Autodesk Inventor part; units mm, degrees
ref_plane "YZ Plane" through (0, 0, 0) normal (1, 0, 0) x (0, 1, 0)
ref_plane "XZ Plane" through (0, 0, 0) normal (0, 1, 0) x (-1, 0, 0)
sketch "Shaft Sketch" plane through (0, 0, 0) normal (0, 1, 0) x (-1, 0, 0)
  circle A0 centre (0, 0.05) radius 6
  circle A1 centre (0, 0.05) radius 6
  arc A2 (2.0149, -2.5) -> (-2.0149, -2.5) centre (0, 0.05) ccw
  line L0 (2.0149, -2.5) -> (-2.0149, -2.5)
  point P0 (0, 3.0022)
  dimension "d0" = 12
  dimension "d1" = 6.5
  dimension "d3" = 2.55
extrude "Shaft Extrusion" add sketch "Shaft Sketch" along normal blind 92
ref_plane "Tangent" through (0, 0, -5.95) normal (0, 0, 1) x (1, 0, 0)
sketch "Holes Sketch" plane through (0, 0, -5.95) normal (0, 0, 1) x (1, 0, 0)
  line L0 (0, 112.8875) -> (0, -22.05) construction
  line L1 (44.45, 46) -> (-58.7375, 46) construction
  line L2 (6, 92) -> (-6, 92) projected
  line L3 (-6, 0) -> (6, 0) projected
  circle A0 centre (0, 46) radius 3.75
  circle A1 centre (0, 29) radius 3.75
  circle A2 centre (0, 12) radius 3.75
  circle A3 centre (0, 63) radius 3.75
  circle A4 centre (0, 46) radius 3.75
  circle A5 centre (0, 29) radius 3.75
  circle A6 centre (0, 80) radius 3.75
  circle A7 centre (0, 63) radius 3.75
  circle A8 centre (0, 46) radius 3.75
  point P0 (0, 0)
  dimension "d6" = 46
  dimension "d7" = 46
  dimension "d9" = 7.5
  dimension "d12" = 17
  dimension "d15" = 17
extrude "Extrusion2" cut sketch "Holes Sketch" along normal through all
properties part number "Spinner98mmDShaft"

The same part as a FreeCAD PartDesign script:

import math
import FreeCAD as App
import Part
import Sketcher
from FreeCAD import Vector
Q = App.Units.Quantity

doc = App.newDocument("Part")
body = doc.addObject("PartDesign::Body", "Body")

sketch1 = doc.addObject("Sketcher::SketchObject", "Sketch")
body.addObject(sketch1)
sketch1.AttachmentSupport = (doc.XZ_Plane, [""])
sketch1.MapMode = "FlatFace"
sketch1.addGeometry(Part.Circle(Vector(0, 0.1, 0), Vector(0, 0, 1), 6), False)
sketch1.addGeometry(Part.ArcOfCircle(Part.Circle(Vector(0, 0.1, 0), Vector(0, 0, 1), 3.2), math.radians(-52), math.radians(232)), False)
sketch1.addGeometry(Part.LineSegment(Vector(-2, -2.5, 0), Vector(2, -2.5, 0)), False)
sketch1.addConstraint(Sketcher.Constraint("Coincident", 1, 1, 2, 2))
sketch1.addConstraint(Sketcher.Constraint("Coincident", 2, 1, 1, 2))
sketch1.addConstraint(Sketcher.Constraint("Horizontal", 2))
sketch1.addConstraint(Sketcher.Constraint("Coincident", 1, 3, 0, 3))
sketch1.addConstraint(Sketcher.Constraint("PointOnObject", 0, 3, -2))
sketch1.addConstraint(Sketcher.Constraint("Diameter", 0, Q("12 mm")))
sketch1.addConstraint(Sketcher.Constraint("Radius", 1, Q("3.25 mm")))
sketch1.addConstraint(Sketcher.Constraint("DistanceY", 1, 1, 0, 3, Q("2.55 mm")))
sketch1.addConstraint(Sketcher.Constraint("DistanceY", 1, 1, -1, 1, Q("2.5 mm")))
pad1 = doc.addObject("PartDesign::Pad", "Pad")
body.addObject(pad1)
pad1.Profile = sketch1
pad1.Length = 92
pad1.Reversed = True

sketch2 = doc.addObject("Sketcher::SketchObject", "Sketch001")
body.addObject(sketch2)
sketch2.AttachmentSupport = (doc.XY_Plane, [""])
sketch2.MapMode = "FlatFace"
sketch2.AttachmentOffset = App.Placement(Vector(0, 0, -5.95), App.Rotation())
sketch2.addGeometry(Part.Circle(Vector(0, 46, 0), Vector(0, 0, 1), 3.8), False)
sketch2.addGeometry(Part.Circle(Vector(0, 29, 0), Vector(0, 0, 1), 3.8), False)
sketch2.addGeometry(Part.Circle(Vector(0, 12, 0), Vector(0, 0, 1), 3.8), False)
sketch2.addGeometry(Part.Circle(Vector(0, 63, 0), Vector(0, 0, 1), 3.8), False)
sketch2.addGeometry(Part.Circle(Vector(0, 80, 0), Vector(0, 0, 1), 3.8), False)
sketch2.addConstraint(Sketcher.Constraint("Equal", 0, 1))
sketch2.addConstraint(Sketcher.Constraint("Equal", 1, 2))
sketch2.addConstraint(Sketcher.Constraint("Equal", 2, 3))
sketch2.addConstraint(Sketcher.Constraint("Equal", 3, 4))
sketch2.addConstraint(Sketcher.Constraint("PointOnObject", 0, 3, -2))
sketch2.addConstraint(Sketcher.Constraint("PointOnObject", 1, 3, -2))
sketch2.addConstraint(Sketcher.Constraint("PointOnObject", 2, 3, -2))
sketch2.addConstraint(Sketcher.Constraint("PointOnObject", 3, 3, -2))
sketch2.addConstraint(Sketcher.Constraint("PointOnObject", 4, 3, -2))
sketch2.addConstraint(Sketcher.Constraint("Diameter", 0, Q("7.5 mm")))
sketch2.addConstraint(Sketcher.Constraint("DistanceY", -1, 1, 0, 3, Q("46 mm")))
sketch2.addConstraint(Sketcher.Constraint("DistanceY", 1, 3, 0, 3, Q("17 mm")))
sketch2.addConstraint(Sketcher.Constraint("DistanceY", 2, 3, 1, 3, Q("17 mm")))
sketch2.addConstraint(Sketcher.Constraint("DistanceY", 0, 3, 3, 3, Q("17 mm")))
sketch2.addConstraint(Sketcher.Constraint("DistanceY", 3, 3, 4, 3, Q("17 mm")))
pocket1 = doc.addObject("PartDesign::Pocket", "Pocket")
body.addObject(pocket1)
pocket1.Profile = sketch2
pocket1.Type = "ThroughAll"
pocket1.Reversed = True

doc.recompute()
